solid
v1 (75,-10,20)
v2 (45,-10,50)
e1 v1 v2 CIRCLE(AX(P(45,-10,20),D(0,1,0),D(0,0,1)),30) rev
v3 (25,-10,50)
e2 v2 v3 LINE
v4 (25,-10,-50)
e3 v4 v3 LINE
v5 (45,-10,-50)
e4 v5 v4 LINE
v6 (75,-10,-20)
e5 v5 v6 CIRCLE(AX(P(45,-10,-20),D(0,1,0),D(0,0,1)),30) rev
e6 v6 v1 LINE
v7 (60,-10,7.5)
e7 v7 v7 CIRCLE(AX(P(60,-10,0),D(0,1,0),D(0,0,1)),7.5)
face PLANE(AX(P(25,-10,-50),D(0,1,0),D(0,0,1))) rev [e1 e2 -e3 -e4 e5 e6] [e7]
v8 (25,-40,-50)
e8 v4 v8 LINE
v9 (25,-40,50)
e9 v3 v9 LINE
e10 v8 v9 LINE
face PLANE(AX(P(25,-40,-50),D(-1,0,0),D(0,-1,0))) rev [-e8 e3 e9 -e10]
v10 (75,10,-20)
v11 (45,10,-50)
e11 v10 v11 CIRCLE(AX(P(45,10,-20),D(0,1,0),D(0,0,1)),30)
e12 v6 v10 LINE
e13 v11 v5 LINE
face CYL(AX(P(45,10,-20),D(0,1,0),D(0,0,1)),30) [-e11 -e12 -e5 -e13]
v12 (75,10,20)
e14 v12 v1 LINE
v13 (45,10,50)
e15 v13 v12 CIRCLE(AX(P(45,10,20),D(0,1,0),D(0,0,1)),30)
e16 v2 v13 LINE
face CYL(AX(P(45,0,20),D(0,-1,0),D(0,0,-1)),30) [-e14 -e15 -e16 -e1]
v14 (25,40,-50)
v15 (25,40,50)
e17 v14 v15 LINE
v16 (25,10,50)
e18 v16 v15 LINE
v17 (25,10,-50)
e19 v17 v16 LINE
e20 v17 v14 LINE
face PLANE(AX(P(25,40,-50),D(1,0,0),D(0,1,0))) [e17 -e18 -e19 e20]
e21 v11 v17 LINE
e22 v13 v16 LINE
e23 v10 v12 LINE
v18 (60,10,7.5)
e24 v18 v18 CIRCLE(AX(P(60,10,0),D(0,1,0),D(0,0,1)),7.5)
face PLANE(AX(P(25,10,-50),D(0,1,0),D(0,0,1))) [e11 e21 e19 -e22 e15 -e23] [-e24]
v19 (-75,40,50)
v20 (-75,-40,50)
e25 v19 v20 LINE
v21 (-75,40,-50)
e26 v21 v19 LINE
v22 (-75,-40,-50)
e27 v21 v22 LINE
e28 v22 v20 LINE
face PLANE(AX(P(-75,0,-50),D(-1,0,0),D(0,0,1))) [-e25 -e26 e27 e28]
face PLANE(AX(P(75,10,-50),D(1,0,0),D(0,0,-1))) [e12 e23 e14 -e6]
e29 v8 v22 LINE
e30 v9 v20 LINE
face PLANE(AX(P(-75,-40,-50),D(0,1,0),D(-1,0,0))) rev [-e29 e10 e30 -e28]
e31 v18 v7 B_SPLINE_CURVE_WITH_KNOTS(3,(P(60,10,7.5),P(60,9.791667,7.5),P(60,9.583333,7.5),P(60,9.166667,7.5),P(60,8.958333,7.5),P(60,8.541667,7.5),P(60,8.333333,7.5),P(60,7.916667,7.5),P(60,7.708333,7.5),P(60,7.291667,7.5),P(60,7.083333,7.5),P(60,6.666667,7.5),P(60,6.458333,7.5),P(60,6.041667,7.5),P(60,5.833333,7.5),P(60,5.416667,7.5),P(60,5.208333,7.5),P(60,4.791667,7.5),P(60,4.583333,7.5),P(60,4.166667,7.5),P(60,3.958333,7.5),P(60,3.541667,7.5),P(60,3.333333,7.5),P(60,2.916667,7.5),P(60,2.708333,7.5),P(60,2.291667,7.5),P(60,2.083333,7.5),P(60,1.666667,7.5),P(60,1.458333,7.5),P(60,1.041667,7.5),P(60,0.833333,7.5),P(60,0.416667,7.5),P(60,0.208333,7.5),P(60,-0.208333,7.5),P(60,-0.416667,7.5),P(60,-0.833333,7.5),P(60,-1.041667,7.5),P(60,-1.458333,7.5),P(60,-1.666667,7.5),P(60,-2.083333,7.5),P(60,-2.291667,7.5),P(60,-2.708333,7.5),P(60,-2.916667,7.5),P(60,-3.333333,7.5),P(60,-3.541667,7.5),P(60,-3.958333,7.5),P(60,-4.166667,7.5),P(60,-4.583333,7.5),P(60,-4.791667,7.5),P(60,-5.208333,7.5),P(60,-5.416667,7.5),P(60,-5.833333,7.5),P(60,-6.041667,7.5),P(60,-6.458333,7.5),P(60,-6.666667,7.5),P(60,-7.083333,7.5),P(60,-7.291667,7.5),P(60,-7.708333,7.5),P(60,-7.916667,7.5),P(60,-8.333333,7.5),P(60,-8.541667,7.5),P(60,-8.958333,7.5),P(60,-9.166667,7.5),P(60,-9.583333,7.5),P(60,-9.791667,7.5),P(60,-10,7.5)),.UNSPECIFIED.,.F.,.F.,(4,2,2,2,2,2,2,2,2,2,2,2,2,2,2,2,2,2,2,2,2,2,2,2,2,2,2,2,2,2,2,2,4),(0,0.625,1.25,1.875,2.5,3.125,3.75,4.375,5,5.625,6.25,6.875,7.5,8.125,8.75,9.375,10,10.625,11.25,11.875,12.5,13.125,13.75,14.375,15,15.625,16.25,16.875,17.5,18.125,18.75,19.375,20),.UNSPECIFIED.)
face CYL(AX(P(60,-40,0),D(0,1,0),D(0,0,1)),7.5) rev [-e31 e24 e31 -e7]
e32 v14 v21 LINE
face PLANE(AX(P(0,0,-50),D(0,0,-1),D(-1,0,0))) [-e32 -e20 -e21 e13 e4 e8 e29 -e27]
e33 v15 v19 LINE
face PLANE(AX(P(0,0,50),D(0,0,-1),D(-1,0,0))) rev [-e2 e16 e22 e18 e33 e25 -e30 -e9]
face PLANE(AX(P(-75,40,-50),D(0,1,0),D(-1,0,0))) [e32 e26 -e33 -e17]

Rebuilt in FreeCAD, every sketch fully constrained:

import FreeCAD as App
import Part
import Sketcher


def edges_at(feature, points):
    """Names of the edges that pass closest to the given points."""
    edges = feature.Shape.Edges
    near = lambda p: min(range(len(edges)), key=lambda i: edges[i].distToShape(Part.Vertex(*p))[0])
    return sorted({f"Edge{near(p) + 1}" for p in points})

doc = App.newDocument("Part")
body = doc.addObject("PartDesign::Body", "Body")

# Sketch on XY plane
sketch1 = body.newObject("Sketcher::SketchObject", "Sketch")
sketch1.AttachmentSupport = (doc.getObject("XY_Plane"), [""])
sketch1.MapMode = "FlatFace"
sketch1.addGeometry([
    Part.LineSegment(App.Vector(-75, 0, 0), App.Vector(75, 0, 0)),  # 0
    Part.LineSegment(App.Vector(75, 0, 0), App.Vector(75, 10, 0)),  # 1
    Part.LineSegment(App.Vector(75, 10, 0), App.Vector(25, 10, 0)),  # 2
    Part.LineSegment(App.Vector(25, 10, 0), App.Vector(25, 40, 0)),  # 3
    Part.LineSegment(App.Vector(25, 40, 0), App.Vector(-75, 40, 0)),  # 4
    Part.LineSegment(App.Vector(-75, 40, 0), App.Vector(-75, 0, 0)),  # 5
], False)
sketch1.addConstraint([
    Sketcher.Constraint("Coincident", 0, 2, 1, 1),
    Sketcher.Constraint("Coincident", 1, 2, 2, 1),
    Sketcher.Constraint("Coincident", 2, 2, 3, 1),
    Sketcher.Constraint("Coincident", 3, 2, 4, 1),
    Sketcher.Constraint("Coincident", 4, 2, 5, 1),
    Sketcher.Constraint("Coincident", 5, 2, 0, 1),
    Sketcher.Constraint("Horizontal", 0),
    Sketcher.Constraint("Vertical", 1),
    Sketcher.Constraint("Horizontal", 2),
    Sketcher.Constraint("Vertical", 3),
    Sketcher.Constraint("Horizontal", 4),
    Sketcher.Constraint("Vertical", 5),
    Sketcher.Constraint("Symmetric", 0, 2, 5, 2, -1, 1),
    Sketcher.Constraint("DistanceX", 0, 1, 0, 2, 150.0),
    Sketcher.Constraint("DistanceX", 2, 2, 2, 1, 50.0),
    Sketcher.Constraint("DistanceY", 1, 1, 1, 2, 10.0),
    Sketcher.Constraint("DistanceY", 3, 1, 3, 2, 30.0),
])
pad1 = body.newObject("PartDesign::Pad", "Pad")
pad1.Profile = sketch1
pad1.Length = 100
pad1.Midplane = True
doc.recompute()

mirrored = body.newObject("PartDesign::Mirrored", "Mirrored")
mirrored.Originals = [pad1]
mirrored.MirrorPlane = (doc.getObject("XZ_Plane"), [""])
body.Tip = mirrored

# Sketch on XZ plane
sketch2 = body.newObject("Sketcher::SketchObject", "Sketch001")
sketch2.AttachmentSupport = (doc.getObject("XZ_Plane"), [""])
sketch2.MapMode = "FlatFace"
sketch2.AttachmentOffset = App.Placement(App.Vector(0, 0, -10), App.Rotation())
sketch2.addGeometry(Part.Circle(App.Vector(60, 0, 0), App.Vector(0, 0, 1), 7.5), False)
sketch2.addConstraint([
    Sketcher.Constraint("PointOnObject", 0, 3, -1),
    Sketcher.Constraint("Diameter", 0, 15.0),
    Sketcher.Constraint("DistanceX", -1, 1, 0, 3, 60.0),
])
pocket1 = body.newObject("PartDesign::Pocket", "Pocket")
pocket1.Profile = sketch2
pocket1.Type = "ThroughAll"
pocket1.Reversed = True
doc.recompute()

fillet = body.newObject("PartDesign::Fillet", "Fillet")
fillet.Base = (pocket1, edges_at(pocket1, [(75, 0, -50)]))
fillet.Radius = 30
doc.recompute()

fillet2 = body.newObject("PartDesign::Fillet", "Fillet001")
fillet2.Base = (fillet, edges_at(fillet, [(75, 0, 50)]))
fillet2.Radius = 30

doc.recompute()
